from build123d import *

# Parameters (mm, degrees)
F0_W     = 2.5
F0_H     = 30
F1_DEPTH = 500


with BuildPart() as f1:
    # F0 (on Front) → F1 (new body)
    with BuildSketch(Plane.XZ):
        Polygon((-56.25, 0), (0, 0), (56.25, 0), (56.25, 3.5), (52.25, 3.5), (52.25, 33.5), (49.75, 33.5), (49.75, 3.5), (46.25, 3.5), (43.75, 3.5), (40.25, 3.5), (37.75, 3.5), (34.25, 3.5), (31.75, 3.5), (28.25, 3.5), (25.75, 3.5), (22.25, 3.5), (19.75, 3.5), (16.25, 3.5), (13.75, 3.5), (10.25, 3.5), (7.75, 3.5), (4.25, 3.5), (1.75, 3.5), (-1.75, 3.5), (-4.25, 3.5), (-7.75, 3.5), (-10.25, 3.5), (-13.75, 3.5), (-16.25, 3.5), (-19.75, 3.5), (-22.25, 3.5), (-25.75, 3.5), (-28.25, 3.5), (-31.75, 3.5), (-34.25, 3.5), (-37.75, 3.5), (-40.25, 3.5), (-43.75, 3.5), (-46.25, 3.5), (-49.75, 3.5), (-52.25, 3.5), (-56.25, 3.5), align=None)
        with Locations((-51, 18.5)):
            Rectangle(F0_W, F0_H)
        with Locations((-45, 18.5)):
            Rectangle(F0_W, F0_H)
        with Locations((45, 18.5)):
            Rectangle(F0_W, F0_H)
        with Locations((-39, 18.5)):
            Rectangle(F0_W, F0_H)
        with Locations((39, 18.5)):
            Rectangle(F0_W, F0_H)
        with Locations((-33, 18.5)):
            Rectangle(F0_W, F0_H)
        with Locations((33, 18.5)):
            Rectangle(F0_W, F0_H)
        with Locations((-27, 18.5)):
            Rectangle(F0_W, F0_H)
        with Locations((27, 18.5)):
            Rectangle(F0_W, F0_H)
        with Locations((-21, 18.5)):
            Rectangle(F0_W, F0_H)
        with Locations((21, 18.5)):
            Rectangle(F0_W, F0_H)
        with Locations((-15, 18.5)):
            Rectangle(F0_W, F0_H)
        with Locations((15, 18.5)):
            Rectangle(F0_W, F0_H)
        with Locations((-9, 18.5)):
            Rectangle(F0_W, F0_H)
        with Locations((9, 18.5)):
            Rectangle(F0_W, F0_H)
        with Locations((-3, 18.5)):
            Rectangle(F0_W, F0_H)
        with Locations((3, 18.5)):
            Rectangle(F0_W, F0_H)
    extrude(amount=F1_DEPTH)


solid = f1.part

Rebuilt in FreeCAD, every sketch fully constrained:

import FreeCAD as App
import Part
import Sketcher
Q = App.Units.Quantity


def add_polygon(sketch, points):
    """Adds a closed chain of lines whose ends are joined by coincident constraints."""
    first, n = sketch.GeometryCount, len(points)
    for a, b in zip(points, points[1:] + points[:1]):
        sketch.addGeometry(Part.LineSegment(App.Vector(*a, 0), App.Vector(*b, 0)), False)
    for i in range(n):
        sketch.addConstraint(Sketcher.Constraint("Coincident", first + i, 2, first + (i + 1) % n, 1))

doc = App.newDocument("Part")
body = doc.addObject("PartDesign::Body", "Body")

sketch1 = body.newObject("Sketcher::SketchObject", "Sketch")
sketch1.AttachmentSupport = (doc.getObject("XZ_Plane"), [""])
sketch1.MapMode = "FlatFace"
add_polygon(sketch1, [(-56.25, 0), (56.25, 0), (56.25, 3.5), (52.25, 3.5), (52.25, 33.5), (49.75, 33.5), (49.75, 3.5), (46.25, 3.5), (46.25, 33.5), (43.75, 33.5), (43.75, 3.5), (40.25, 3.5), (40.25, 33.5), (37.75, 33.5), (37.75, 3.5), (34.25, 3.5), (34.25, 33.5), (31.75, 33.5), (31.75, 3.5), (28.25, 3.5), (28.25, 33.5), (25.75, 33.5), (25.75, 3.5), (22.25, 3.5), (22.25, 33.5), (19.75, 33.5), (19.75, 3.5), (16.25, 3.5), (16.25, 33.5), (13.75, 33.5), (13.75, 3.5), (10.25, 3.5), (10.25, 33.5), (7.75, 33.5), (7.75, 3.5), (4.25, 3.5), (4.25, 33.5), (1.75, 33.5), (1.75, 3.5), (-1.75, 3.5), (-1.75, 33.5), (-4.25, 33.5), (-4.25, 3.5), (-7.75, 3.5), (-7.75, 33.5), (-10.25, 33.5), (-10.25, 3.5), (-13.75, 3.5), (-13.75, 33.5), (-16.25, 33.5), (-16.25, 3.5), (-19.75, 3.5), (-19.75, 33.5), (-22.25, 33.5), (-22.25, 3.5), (-25.75, 3.5), (-25.75, 33.5), (-28.25, 33.5), (-28.25, 3.5), (-31.75, 3.5), (-31.75, 33.5), (-34.25, 33.5), (-34.25, 3.5), (-37.75, 3.5), (-37.75, 33.5), (-40.25, 33.5), (-40.25, 3.5), (-43.75, 3.5), (-43.75, 33.5), (-46.25, 33.5), (-46.25, 3.5), (-49.75, 3.5), (-49.75, 33.5), (-52.25, 33.5), (-52.25, 3.5), (-56.25, 3.5)])
sketch1.addConstraint(Sketcher.Constraint("Horizontal", 0))
sketch1.addConstraint(Sketcher.Constraint("Vertical", 1))
sketch1.addConstraint(Sketcher.Constraint("Horizontal", 2))
sketch1.addConstraint(Sketcher.Constraint("Vertical", 3))
sketch1.addConstraint(Sketcher.Constraint("Horizontal", 4))
sketch1.addConstraint(Sketcher.Constraint("Vertical", 5))
sketch1.addConstraint(Sketcher.Constraint("Horizontal", 6))
sketch1.addConstraint(Sketcher.Constraint("Vertical", 7))
sketch1.addConstraint(Sketcher.Constraint("Horizontal", 8))
sketch1.addConstraint(Sketcher.Constraint("Vertical", 9))
sketch1.addConstraint(Sketcher.Constraint("Horizontal", 10))
sketch1.addConstraint(Sketcher.Constraint("Vertical", 11))
sketch1.addConstraint(Sketcher.Constraint("Horizontal", 12))
sketch1.addConstraint(Sketcher.Constraint("Vertical", 13))
sketch1.addConstraint(Sketcher.Constraint("Horizontal", 14))
sketch1.addConstraint(Sketcher.Constraint("Vertical", 15))
sketch1.addConstraint(Sketcher.Constraint("Horizontal", 16))
sketch1.addConstraint(Sketcher.Constraint("Vertical", 17))
sketch1.addConstraint(Sketcher.Constraint("Horizontal", 18))
sketch1.addConstraint(Sketcher.Constraint("Vertical", 19))
sketch1.addConstraint(Sketcher.Constraint("Horizontal", 20))
sketch1.addConstraint(Sketcher.Constraint("Vertical", 21))
sketch1.addConstraint(Sketcher.Constraint("Horizontal", 22))
sketch1.addConstraint(Sketcher.Constraint("Vertical", 23))
sketch1.addConstraint(Sketcher.Constraint("Horizontal", 24))
sketch1.addConstraint(Sketcher.Constraint("Vertical", 25))
sketch1.addConstraint(Sketcher.Constraint("Horizontal", 26))
sketch1.addConstraint(Sketcher.Constraint("Vertical", 27))
sketch1.addConstraint(Sketcher.Constraint("Horizontal", 28))
sketch1.addConstraint(Sketcher.Constraint("Vertical", 29))
sketch1.addConstraint(Sketcher.Constraint("Horizontal", 30))
sketch1.addConstraint(Sketcher.Constraint("Vertical", 31))
sketch1.addConstraint(Sketcher.Constraint("Horizontal", 32))
sketch1.addConstraint(Sketcher.Constraint("Vertical", 33))
sketch1.addConstraint(Sketcher.Constraint("Horizontal", 34))
sketch1.addConstraint(Sketcher.Constraint("Vertical", 35))
sketch1.addConstraint(Sketcher.Constraint("Horizontal", 36))
sketch1.addConstraint(Sketcher.Constraint("Vertical", 37))
sketch1.addConstraint(Sketcher.Constraint("Horizontal", 38))
sketch1.addConstraint(Sketcher.Constraint("Vertical", 39))
sketch1.addConstraint(Sketcher.Constraint("Horizontal", 40))
sketch1.addConstraint(Sketcher.Constraint("Vertical", 41))
sketch1.addConstraint(Sketcher.Constraint("Horizontal", 42))
sketch1.addConstraint(Sketcher.Constraint("Vertical", 43))
sketch1.addConstraint(Sketcher.Constraint("Horizontal", 44))
sketch1.addConstraint(Sketcher.Constraint("Vertical", 45))
sketch1.addConstraint(Sketcher.Constraint("Horizontal", 46))
sketch1.addConstraint(Sketcher.Constraint("Vertical", 47))
sketch1.addConstraint(Sketcher.Constraint("Horizontal", 48))
sketch1.addConstraint(Sketcher.Constraint("Vertical", 49))
sketch1.addConstraint(Sketcher.Constraint("Horizontal", 50))
sketch1.addConstraint(Sketcher.Constraint("Vertical", 51))
sketch1.addConstraint(Sketcher.Constraint("Horizontal", 52))
sketch1.addConstraint(Sketcher.Constraint("Vertical", 53))
sketch1.addConstraint(Sketcher.Constraint("Horizontal", 54))
sketch1.addConstraint(Sketcher.Constraint("Vertical", 55))
sketch1.addConstraint(Sketcher.Constraint("Horizontal", 56))
sketch1.addConstraint(Sketcher.Constraint("Vertical", 57))
sketch1.addConstraint(Sketcher.Constraint("Horizontal", 58))
sketch1.addConstraint(Sketcher.Constraint("Vertical", 59))
sketch1.addConstraint(Sketcher.Constraint("Horizontal", 60))
sketch1.addConstraint(Sketcher.Constraint("Vertical", 61))
sketch1.addConstraint(Sketcher.Constraint("Horizontal", 62))
sketch1.addConstraint(Sketcher.Constraint("Vertical", 63))
sketch1.addConstraint(Sketcher.Constraint("Horizontal", 64))
sketch1.addConstraint(Sketcher.Constraint("Vertical", 65))
sketch1.addConstraint(Sketcher.Constraint("Horizontal", 66))
sketch1.addConstraint(Sketcher.Constraint("Vertical", 67))
sketch1.addConstraint(Sketcher.Constraint("Horizontal", 68))
sketch1.addConstraint(Sketcher.Constraint("Vertical", 69))
sketch1.addConstraint(Sketcher.Constraint("Horizontal", 70))
sketch1.addConstraint(Sketcher.Constraint("Vertical", 71))
sketch1.addConstraint(Sketcher.Constraint("Horizontal", 72))
sketch1.addConstraint(Sketcher.Constraint("Vertical", 73))
sketch1.addConstraint(Sketcher.Constraint("Horizontal", 74))
sketch1.addConstraint(Sketcher.Constraint("Vertical", 75))
sketch1.addConstraint(Sketcher.Constraint("Symmetric", 0, 2, 75, 2, -1, 1))
sketch1.addConstraint(Sketcher.Constraint("Symmetric", 36, 2, 39, 2, -2))
sketch1.addConstraint(Sketcher.Constraint("Symmetric", 34, 2, 41, 2, -2))
sketch1.addConstraint(Sketcher.Constraint("Symmetric", 32, 2, 43, 2, -2))
sketch1.addConstraint(Sketcher.Constraint("Symmetric", 30, 2, 45, 2, -2))
sketch1.addConstraint(Sketcher.Constraint("Symmetric", 28, 2, 47, 2, -2))
sketch1.addConstraint(Sketcher.Constraint("Symmetric", 26, 2, 49, 2, -2))
sketch1.addConstraint(Sketcher.Constraint("Symmetric", 24, 2, 51, 2, -2))
sketch1.addConstraint(Sketcher.Constraint("Symmetric", 22, 2, 53, 2, -2))
sketch1.addConstraint(Sketcher.Constraint("Symmetric", 20, 2, 55, 2, -2))
sketch1.addConstraint(Sketcher.Constraint("Symmetric", 18, 2, 57, 2, -2))
sketch1.addConstraint(Sketcher.Constraint("Symmetric", 16, 2, 59, 2, -2))
sketch1.addConstraint(Sketcher.Constraint("Symmetric", 14, 2, 61, 2, -2))
sketch1.addConstraint(Sketcher.Constraint("Symmetric", 12, 2, 63, 2, -2))
sketch1.addConstraint(Sketcher.Constraint("Symmetric", 10, 2, 65, 2, -2))
sketch1.addConstraint(Sketcher.Constraint("Symmetric", 8, 2, 67, 2, -2))
sketch1.addConstraint(Sketcher.Constraint("Symmetric", 6, 2, 69, 2, -2))
sketch1.addConstraint(Sketcher.Constraint("Symmetric", 4, 2, 71, 2, -2))
sketch1.addConstraint(Sketcher.Constraint("Symmetric", 2, 2, 73, 2, -2))
sketch1.addConstraint(Sketcher.Constraint("Horizontal", 2, 2, 5, 2))
sketch1.addConstraint(Sketcher.Constraint("Horizontal", 4, 2, 7, 2))
sketch1.addConstraint(Sketcher.Constraint("Horizontal", 6, 2, 9, 2))
sketch1.addConstraint(Sketcher.Constraint("Horizontal", 8, 2, 11, 2))
sketch1.addConstraint(Sketcher.Constraint("Horizontal", 10, 2, 13, 2))
sketch1.addConstraint(Sketcher.Constraint("Horizontal", 12, 2, 15, 2))
sketch1.addConstraint(Sketcher.Constraint("Horizontal", 14, 2, 17, 2))
sketch1.addConstraint(Sketcher.Constraint("Horizontal", 16, 2, 19, 2))
sketch1.addConstraint(Sketcher.Constraint("Horizontal", 18, 2, 21, 2))
sketch1.addConstraint(Sketcher.Constraint("Horizontal", 20, 2, 23, 2))
sketch1.addConstraint(Sketcher.Constraint("Horizontal", 22, 2, 25, 2))
sketch1.addConstraint(Sketcher.Constraint("Horizontal", 24, 2, 27, 2))
sketch1.addConstraint(Sketcher.Constraint("Horizontal", 26, 2, 29, 2))
sketch1.addConstraint(Sketcher.Constraint("Horizontal", 28, 2, 31, 2))
sketch1.addConstraint(Sketcher.Constraint("Horizontal", 30, 2, 33, 2))
sketch1.addConstraint(Sketcher.Constraint("Horizontal", 32, 2, 35, 2))
sketch1.addConstraint(Sketcher.Constraint("Horizontal", 34, 2, 37, 2))
sketch1.addConstraint(Sketcher.Constraint("Equal", 4, 8))
sketch1.addConstraint(Sketcher.Constraint("Equal", 6, 10))
sketch1.addConstraint(Sketcher.Constraint("Equal", 8, 12))
sketch1.addConstraint(Sketcher.Constraint("Equal", 10, 14))
sketch1.addConstraint(Sketcher.Constraint("Equal", 12, 16))
sketch1.addConstraint(Sketcher.Constraint("Equal", 14, 18))
sketch1.addConstraint(Sketcher.Constraint("Equal", 16, 20))
sketch1.addConstraint(Sketcher.Constraint("Equal", 18, 22))
sketch1.addConstraint(Sketcher.Constraint("Equal", 20, 24))
sketch1.addConstraint(Sketcher.Constraint("Equal", 22, 26))
sketch1.addConstraint(Sketcher.Constraint("Equal", 24, 28))
sketch1.addConstraint(Sketcher.Constraint("Equal", 26, 30))
sketch1.addConstraint(Sketcher.Constraint("Equal", 28, 32))
sketch1.addConstraint(Sketcher.Constraint("Equal", 30, 34))
sketch1.addConstraint(Sketcher.Constraint("Equal", 32, 36))
sketch1.addConstraint(Sketcher.Constraint("Equal", 34, 38))
sketch1.addConstraint(Sketcher.Constraint("Equal", 70, 1))
sketch1.addConstraint(Sketcher.Constraint("DistanceX", 2, 2, 2, 1, Q("4 mm")))
sketch1.addConstraint(Sketcher.Constraint("DistanceY", 3, 1, 3, 2, Q("30 mm")))
sketch1.addConstraint(Sketcher.Constraint("DistanceX", 0, 1, 0, 2, Q("112.5 mm")))
sketch1.addConstraint(Sketcher.Constraint("DistanceX", 4, 2, 4, 1, Q("2.5 mm")))
pad1 = body.newObject("PartDesign::Pad", "Pad")
pad1.Profile = sketch1
pad1.Length = 500

doc.recompute()
